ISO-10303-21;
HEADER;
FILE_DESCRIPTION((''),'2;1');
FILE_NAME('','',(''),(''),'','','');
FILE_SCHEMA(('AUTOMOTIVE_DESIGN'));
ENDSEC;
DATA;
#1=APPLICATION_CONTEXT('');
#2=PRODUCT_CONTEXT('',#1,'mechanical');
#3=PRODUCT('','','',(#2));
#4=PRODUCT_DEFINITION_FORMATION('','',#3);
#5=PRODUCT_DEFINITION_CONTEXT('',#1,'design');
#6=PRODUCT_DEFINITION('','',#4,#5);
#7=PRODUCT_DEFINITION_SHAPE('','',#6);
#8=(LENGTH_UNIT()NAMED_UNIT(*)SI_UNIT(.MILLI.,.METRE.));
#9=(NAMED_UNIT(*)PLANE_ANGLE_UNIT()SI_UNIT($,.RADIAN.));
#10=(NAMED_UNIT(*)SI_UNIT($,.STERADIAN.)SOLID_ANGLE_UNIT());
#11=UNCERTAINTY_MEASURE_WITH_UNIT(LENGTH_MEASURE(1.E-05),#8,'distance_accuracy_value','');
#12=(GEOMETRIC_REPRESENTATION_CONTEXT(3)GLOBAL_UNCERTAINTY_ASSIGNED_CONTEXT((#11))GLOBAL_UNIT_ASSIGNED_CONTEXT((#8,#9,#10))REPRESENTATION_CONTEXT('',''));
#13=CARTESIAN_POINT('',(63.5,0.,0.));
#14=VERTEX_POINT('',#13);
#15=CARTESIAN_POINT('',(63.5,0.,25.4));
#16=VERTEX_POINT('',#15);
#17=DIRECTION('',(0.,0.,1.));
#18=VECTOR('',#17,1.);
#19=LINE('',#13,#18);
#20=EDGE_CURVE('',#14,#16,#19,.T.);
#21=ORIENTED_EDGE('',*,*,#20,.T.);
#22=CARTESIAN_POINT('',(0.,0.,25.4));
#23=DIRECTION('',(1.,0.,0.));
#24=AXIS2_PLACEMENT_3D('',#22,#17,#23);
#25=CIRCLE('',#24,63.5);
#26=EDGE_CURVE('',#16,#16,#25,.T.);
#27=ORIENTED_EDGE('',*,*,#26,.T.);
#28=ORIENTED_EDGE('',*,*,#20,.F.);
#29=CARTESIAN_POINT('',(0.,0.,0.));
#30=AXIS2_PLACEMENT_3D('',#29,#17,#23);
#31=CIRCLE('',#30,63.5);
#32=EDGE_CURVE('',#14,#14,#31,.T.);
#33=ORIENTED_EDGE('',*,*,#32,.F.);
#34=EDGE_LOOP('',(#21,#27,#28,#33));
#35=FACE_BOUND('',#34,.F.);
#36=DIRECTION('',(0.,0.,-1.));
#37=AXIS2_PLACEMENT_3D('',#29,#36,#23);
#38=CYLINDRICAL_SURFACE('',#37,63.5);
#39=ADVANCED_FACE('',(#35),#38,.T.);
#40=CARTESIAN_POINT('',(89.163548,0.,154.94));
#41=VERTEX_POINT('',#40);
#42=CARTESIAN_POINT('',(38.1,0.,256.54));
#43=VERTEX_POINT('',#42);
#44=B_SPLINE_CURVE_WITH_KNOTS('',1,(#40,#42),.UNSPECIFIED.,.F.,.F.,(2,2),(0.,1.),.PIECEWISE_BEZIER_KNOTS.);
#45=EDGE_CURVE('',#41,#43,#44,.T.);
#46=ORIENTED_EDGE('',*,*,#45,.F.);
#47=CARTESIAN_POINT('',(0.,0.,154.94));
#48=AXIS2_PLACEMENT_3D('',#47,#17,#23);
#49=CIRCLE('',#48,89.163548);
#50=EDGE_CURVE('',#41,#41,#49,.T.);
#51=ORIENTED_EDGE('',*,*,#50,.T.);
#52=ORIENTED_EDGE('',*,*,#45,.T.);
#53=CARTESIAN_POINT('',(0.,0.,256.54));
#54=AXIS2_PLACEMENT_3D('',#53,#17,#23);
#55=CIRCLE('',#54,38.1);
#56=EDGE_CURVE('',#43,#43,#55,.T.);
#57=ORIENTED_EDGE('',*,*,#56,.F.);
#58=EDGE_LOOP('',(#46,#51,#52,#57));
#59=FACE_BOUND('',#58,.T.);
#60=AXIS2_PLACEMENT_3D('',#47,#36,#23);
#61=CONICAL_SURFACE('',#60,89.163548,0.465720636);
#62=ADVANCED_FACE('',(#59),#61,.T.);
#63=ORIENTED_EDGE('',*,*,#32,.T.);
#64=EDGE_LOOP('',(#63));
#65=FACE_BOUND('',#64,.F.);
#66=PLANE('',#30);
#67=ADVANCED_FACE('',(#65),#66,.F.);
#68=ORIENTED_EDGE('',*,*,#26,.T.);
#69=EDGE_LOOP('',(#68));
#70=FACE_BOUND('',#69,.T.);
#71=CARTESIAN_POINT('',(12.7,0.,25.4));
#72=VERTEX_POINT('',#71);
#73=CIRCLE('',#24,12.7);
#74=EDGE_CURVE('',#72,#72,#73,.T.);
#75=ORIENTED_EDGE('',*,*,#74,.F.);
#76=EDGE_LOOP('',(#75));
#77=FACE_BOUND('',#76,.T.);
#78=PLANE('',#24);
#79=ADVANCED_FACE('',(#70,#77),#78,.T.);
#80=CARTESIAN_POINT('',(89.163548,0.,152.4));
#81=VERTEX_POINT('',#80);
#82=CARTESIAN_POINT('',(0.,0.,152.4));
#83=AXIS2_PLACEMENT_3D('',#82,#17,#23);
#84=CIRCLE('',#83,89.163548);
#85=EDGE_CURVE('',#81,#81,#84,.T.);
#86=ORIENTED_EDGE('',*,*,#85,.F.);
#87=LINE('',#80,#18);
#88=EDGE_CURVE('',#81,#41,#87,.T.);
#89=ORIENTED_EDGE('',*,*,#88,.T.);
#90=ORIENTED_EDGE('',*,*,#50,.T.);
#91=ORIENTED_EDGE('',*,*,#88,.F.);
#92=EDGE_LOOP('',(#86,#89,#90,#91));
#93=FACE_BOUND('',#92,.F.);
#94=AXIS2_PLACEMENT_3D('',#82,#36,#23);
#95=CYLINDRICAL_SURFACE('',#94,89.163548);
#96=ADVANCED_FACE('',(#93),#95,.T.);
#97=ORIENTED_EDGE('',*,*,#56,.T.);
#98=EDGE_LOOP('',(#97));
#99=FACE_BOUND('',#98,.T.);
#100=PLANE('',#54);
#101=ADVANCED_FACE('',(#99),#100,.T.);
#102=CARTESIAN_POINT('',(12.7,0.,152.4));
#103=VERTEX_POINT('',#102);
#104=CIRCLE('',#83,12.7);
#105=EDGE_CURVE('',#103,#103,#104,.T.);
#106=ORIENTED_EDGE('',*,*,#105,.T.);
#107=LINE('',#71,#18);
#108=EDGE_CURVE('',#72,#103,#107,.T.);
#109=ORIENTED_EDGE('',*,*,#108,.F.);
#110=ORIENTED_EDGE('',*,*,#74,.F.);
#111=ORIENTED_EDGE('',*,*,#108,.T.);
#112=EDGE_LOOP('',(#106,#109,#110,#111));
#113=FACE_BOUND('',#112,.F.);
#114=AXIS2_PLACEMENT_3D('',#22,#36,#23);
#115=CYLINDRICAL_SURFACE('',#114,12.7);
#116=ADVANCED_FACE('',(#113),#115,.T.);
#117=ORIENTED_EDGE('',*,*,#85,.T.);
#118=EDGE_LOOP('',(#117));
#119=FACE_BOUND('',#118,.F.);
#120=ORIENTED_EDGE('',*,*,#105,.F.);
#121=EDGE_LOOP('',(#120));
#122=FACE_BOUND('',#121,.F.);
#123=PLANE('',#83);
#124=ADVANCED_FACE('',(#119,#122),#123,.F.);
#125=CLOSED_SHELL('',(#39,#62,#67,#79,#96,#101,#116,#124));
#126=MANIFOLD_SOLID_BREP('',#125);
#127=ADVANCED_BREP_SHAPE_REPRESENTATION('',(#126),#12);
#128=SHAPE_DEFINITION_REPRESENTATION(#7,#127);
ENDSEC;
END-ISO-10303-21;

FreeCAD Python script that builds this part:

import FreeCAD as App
import Part
import Sketcher
Q = App.Units.Quantity

doc = App.newDocument("Part")
params = doc.addObject("Spreadsheet::Sheet", "Params")
for row, (alias, value) in enumerate([
    ("sketch1_diameter", "5 in"),
    ("pad1_length", "1 in"),
    ("sketch2_diameter", "1 in"),
    ("pad2_length", "5 in"),
    ("pad3_length", "0.1 in"),
    ("sketch5_diameter", "3 in"),
], start=1):
    params.set(f"A{row}", alias)
    params.set(f"B{row}", "=" + value)
    params.setAlias(f"B{row}", alias)

body = doc.addObject("PartDesign::Body", "Body")

sketch1 = doc.addObject("Sketcher::SketchObject", "Sketch")
body.addObject(sketch1)
sketch1.AttachmentSupport = (doc.XY_Plane, [""])
sketch1.MapMode = "FlatFace"
sketch1.addGeometry(Part.Circle(App.Vector(0, 0, 0), App.Vector(0, 0, 1), 64), False)
sketch1.addConstraint(Sketcher.Constraint("Coincident", 0, 3, -1, 1))
sketch1.addConstraint(Sketcher.Constraint("Diameter", 0, Q("5 in")))
sketch1.setExpression("Constraints[1]", "Params.sketch1_diameter")
pad1 = doc.addObject("PartDesign::Pad", "Pad")
body.addObject(pad1)
pad1.Profile = sketch1
pad1.setExpression("Length", "Params.pad1_length")

sketch2 = doc.addObject("Sketcher::SketchObject", "Sketch001")
body.addObject(sketch2)
sketch2.AttachmentSupport = (doc.XY_Plane, [""])
sketch2.MapMode = "FlatFace"
sketch2.AttachmentOffset = App.Placement(App.Vector(0, 0, 1 * 25.4), App.Rotation())
sketch2.addGeometry(Part.Circle(App.Vector(0, 0, 0), App.Vector(0, 0, 1), 13), False)
sketch2.addConstraint(Sketcher.Constraint("Coincident", 0, 3, -1, 1))
sketch2.addConstraint(Sketcher.Constraint("Diameter", 0, Q("1 in")))
sketch2.setExpression("Constraints[1]", "Params.sketch2_diameter")
pad2 = doc.addObject("PartDesign::Pad", "Pad001")
body.addObject(pad2)
pad2.Profile = sketch2
pad2.setExpression("Length", "Params.pad2_length")

sketch3 = doc.addObject("Sketcher::SketchObject", "Sketch002")
body.addObject(sketch3)
sketch3.AttachmentSupport = (doc.XY_Plane, [""])
sketch3.MapMode = "FlatFace"
sketch3.AttachmentOffset = App.Placement(App.Vector(0, 0, 6 * 25.4), App.Rotation())
sketch3.addGeometry(Part.Circle(App.Vector(0, 0, 0), App.Vector(0, 0, 1), 89), False)
sketch3.addConstraint(Sketcher.Constraint("Coincident", 0, 3, -1, 1))
sketch3.addConstraint(Sketcher.Constraint("Diameter", 0, 178.327096))
pad3 = doc.addObject("PartDesign::Pad", "Pad002")
body.addObject(pad3)
pad3.Profile = sketch3
pad3.setExpression("Length", "Params.pad3_length")

sketch4 = doc.addObject("Sketcher::SketchObject", "Sketch003")
body.addObject(sketch4)
sketch4.AttachmentSupport = (doc.XY_Plane, [""])
sketch4.MapMode = "FlatFace"
sketch4.AttachmentOffset = App.Placement(App.Vector(0, 0, 6.1 * 25.4), App.Rotation())
sketch4.addGeometry(Part.Circle(App.Vector(0, 0, 0), App.Vector(0, 0, 1), 89), False)
sketch4.addConstraint(Sketcher.Constraint("Coincident", 0, 3, -1, 1))
sketch4.addConstraint(Sketcher.Constraint("Diameter", 0, 178.327096))

sketch5 = doc.addObject("Sketcher::SketchObject", "Sketch004")
body.addObject(sketch5)
sketch5.AttachmentSupport = (doc.XY_Plane, [""])
sketch5.MapMode = "FlatFace"
sketch5.AttachmentOffset = App.Placement(App.Vector(0, 0, 10.1 * 25.4), App.Rotation())
sketch5.addGeometry(Part.Circle(App.Vector(0, 0, 0), App.Vector(0, 0, 1), 38), False)
sketch5.addConstraint(Sketcher.Constraint("Coincident", 0, 3, -1, 1))
sketch5.addConstraint(Sketcher.Constraint("Diameter", 0, Q("3 in")))
sketch5.setExpression("Constraints[1]", "Params.sketch5_diameter")

additiveloft = doc.addObject("PartDesign::AdditiveLoft", "AdditiveLoft")
body.addObject(additiveloft)
additiveloft.Profile = sketch4
additiveloft.Sections = [sketch5]

doc.recompute()
